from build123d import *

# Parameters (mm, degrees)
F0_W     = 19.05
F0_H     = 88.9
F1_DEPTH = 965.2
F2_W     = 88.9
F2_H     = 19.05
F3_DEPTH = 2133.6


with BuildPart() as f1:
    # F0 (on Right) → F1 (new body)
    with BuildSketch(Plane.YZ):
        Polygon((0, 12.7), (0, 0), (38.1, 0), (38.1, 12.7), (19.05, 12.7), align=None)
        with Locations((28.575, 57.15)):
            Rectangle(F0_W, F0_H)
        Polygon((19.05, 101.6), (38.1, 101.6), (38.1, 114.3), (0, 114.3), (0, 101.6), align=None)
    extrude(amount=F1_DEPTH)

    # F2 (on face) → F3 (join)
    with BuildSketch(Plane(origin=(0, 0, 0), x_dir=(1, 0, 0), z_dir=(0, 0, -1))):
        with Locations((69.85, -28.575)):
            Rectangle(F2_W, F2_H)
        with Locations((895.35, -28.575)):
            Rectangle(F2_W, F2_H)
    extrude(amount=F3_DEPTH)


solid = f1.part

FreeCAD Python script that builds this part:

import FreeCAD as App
import Part
import Sketcher
from FreeCAD import Vector
Q = App.Units.Quantity

doc = App.newDocument("Part")
params = doc.addObject("Spreadsheet::Sheet", "Params")
for row, (alias, value) in enumerate([
    ("sketch1_width", "1.5 in"),
    ("sketch1_height", "0.5 in"),
    ("sketch1_height2", "4.5 in"),
    ("sketch1_width2", "0.75 in"),
    ("pad1_length", "38 in"),
    ("sketch2_width", "3.5 in"),
    ("sketch2_height", "0.75 in"),
    ("pad2_length", "84 in"),
], start=1):
    params.set(f"A{row}", alias)
    params.set(f"B{row}", "=" + value)
    params.setAlias(f"B{row}", alias)

body = doc.addObject("PartDesign::Body", "Body")

sketch1 = body.newObject("Sketcher::SketchObject", "Sketch")
sketch1.AttachmentSupport = (doc.getObject("YZ_Plane"), [""])
sketch1.MapMode = "FlatFace"
sketch1.addGeometry(Part.LineSegment(Vector(0, 13, 0), Vector(0, 0, 0)), False)
sketch1.addGeometry(Part.LineSegment(Vector(0, 0, 0), Vector(38, 0, 0)), False)
sketch1.addGeometry(Part.LineSegment(Vector(38, 0, 0), Vector(38, 114, 0)), False)
sketch1.addGeometry(Part.LineSegment(Vector(38, 114, 0), Vector(0, 114, 0)), False)
sketch1.addGeometry(Part.LineSegment(Vector(0, 114, 0), Vector(0, 102, 0)), False)
sketch1.addGeometry(Part.LineSegment(Vector(0, 102, 0), Vector(19, 102, 0)), False)
sketch1.addGeometry(Part.LineSegment(Vector(19, 102, 0), Vector(19, 13, 0)), False)
sketch1.addGeometry(Part.LineSegment(Vector(19, 13, 0), Vector(0, 13, 0)), False)
sketch1.addConstraint(Sketcher.Constraint("Coincident", 0, 2, 1, 1))
sketch1.addConstraint(Sketcher.Constraint("Coincident", 1, 2, 2, 1))
sketch1.addConstraint(Sketcher.Constraint("Coincident", 2, 2, 3, 1))
sketch1.addConstraint(Sketcher.Constraint("Coincident", 3, 2, 4, 1))
sketch1.addConstraint(Sketcher.Constraint("Coincident", 4, 2, 5, 1))
sketch1.addConstraint(Sketcher.Constraint("Coincident", 5, 2, 6, 1))
sketch1.addConstraint(Sketcher.Constraint("Coincident", 6, 2, 7, 1))
sketch1.addConstraint(Sketcher.Constraint("Coincident", 7, 2, 0, 1))
sketch1.addConstraint(Sketcher.Constraint("Vertical", 0))
sketch1.addConstraint(Sketcher.Constraint("Horizontal", 1))
sketch1.addConstraint(Sketcher.Constraint("Vertical", 2))
sketch1.addConstraint(Sketcher.Constraint("Horizontal", 3))
sketch1.addConstraint(Sketcher.Constraint("Vertical", 4))
sketch1.addConstraint(Sketcher.Constraint("Horizontal", 5))
sketch1.addConstraint(Sketcher.Constraint("Vertical", 6))
sketch1.addConstraint(Sketcher.Constraint("Horizontal", 7))
sketch1.addConstraint(Sketcher.Constraint("Coincident", 0, 2, -1, 1))
sketch1.addConstraint(Sketcher.Constraint("PointOnObject", 3, 2, -2))
sketch1.addConstraint(Sketcher.Constraint("Equal", 0, 4))
sketch1.addConstraint(Sketcher.Constraint("DistanceX", 1, 1, 1, 2, Q("1.5 in")))
sketch1.addConstraint(Sketcher.Constraint("DistanceY", 0, 2, 0, 1, Q("0.5 in")))
sketch1.addConstraint(Sketcher.Constraint("DistanceY", 2, 1, 2, 2, Q("4.5 in")))
sketch1.addConstraint(Sketcher.Constraint("DistanceX", 5, 1, 5, 2, Q("0.75 in")))
sketch1.setExpression("Constraints[19]", "Params.sketch1_width")
sketch1.setExpression("Constraints[20]", "Params.sketch1_height")
sketch1.setExpression("Constraints[21]", "Params.sketch1_height2")
sketch1.setExpression("Constraints[22]", "Params.sketch1_width2")
pad1 = body.newObject("PartDesign::Pad", "Pad")
pad1.Profile = sketch1
pad1.setExpression("Length", "Params.pad1_length")

sketch2 = body.newObject("Sketcher::SketchObject", "Sketch001")
sketch2.AttachmentSupport = (doc.getObject("XY_Plane"), [""])
sketch2.MapMode = "FlatFace"
sketch2.addGeometry(Part.LineSegment(Vector(25, 19, 0), Vector(25, 38, 0)), False)
sketch2.addGeometry(Part.LineSegment(Vector(25, 38, 0), Vector(114, 38, 0)), False)
sketch2.addGeometry(Part.LineSegment(Vector(114, 38, 0), Vector(114, 19, 0)), False)
sketch2.addGeometry(Part.LineSegment(Vector(114, 19, 0), Vector(25, 19, 0)), False)
sketch2.addGeometry(Part.LineSegment(Vector(851, 19, 0), Vector(851, 38, 0)), False)
sketch2.addGeometry(Part.LineSegment(Vector(851, 38, 0), Vector(940, 38, 0)), False)
sketch2.addGeometry(Part.LineSegment(Vector(940, 38, 0), Vector(940, 19, 0)), False)
sketch2.addGeometry(Part.LineSegment(Vector(940, 19, 0), Vector(851, 19, 0)), False)
sketch2.addConstraint(Sketcher.Constraint("Coincident", 0, 2, 1, 1))
sketch2.addConstraint(Sketcher.Constraint("Coincident", 1, 2, 2, 1))
sketch2.addConstraint(Sketcher.Constraint("Coincident", 2, 2, 3, 1))
sketch2.addConstraint(Sketcher.Constraint("Coincident", 3, 2, 0, 1))
sketch2.addConstraint(Sketcher.Constraint("Coincident", 4, 2, 5, 1))
sketch2.addConstraint(Sketcher.Constraint("Coincident", 5, 2, 6, 1))
sketch2.addConstraint(Sketcher.Constraint("Coincident", 6, 2, 7, 1))
sketch2.addConstraint(Sketcher.Constraint("Coincident", 7, 2, 4, 1))
sketch2.addConstraint(Sketcher.Constraint("Vertical", 0))
sketch2.addConstraint(Sketcher.Constraint("Horizontal", 1))
sketch2.addConstraint(Sketcher.Constraint("Vertical", 2))
sketch2.addConstraint(Sketcher.Constraint("Horizontal", 3))
sketch2.addConstraint(Sketcher.Constraint("Vertical", 4))
sketch2.addConstraint(Sketcher.Constraint("Horizontal", 5))
sketch2.addConstraint(Sketcher.Constraint("Vertical", 6))
sketch2.addConstraint(Sketcher.Constraint("Horizontal", 7))
sketch2.addConstraint(Sketcher.Constraint("Horizontal", 1, 2, 4, 2))
sketch2.addConstraint(Sketcher.Constraint("Horizontal", 3, 2, 6, 2))
sketch2.addConstraint(Sketcher.Constraint("Equal", 3, 5))
sketch2.addConstraint(Sketcher.Constraint("DistanceX", 1, 1, 1, 2, Q("3.5 in")))
sketch2.addConstraint(Sketcher.Constraint("DistanceX", -1, 1, 0, 2, Q("1 in")))
sketch2.addConstraint(Sketcher.Constraint("DistanceX", -1, 1, 5, 2, Q("37 in")))
sketch2.addConstraint(Sketcher.Constraint("DistanceY", 0, 1, 0, 2, Q("0.75 in")))
sketch2.addConstraint(Sketcher.Constraint("DistanceY", -1, 1, 0, 2, Q("1.5 in")))
sketch2.setExpression("Constraints[19]", "Params.sketch2_width")
sketch2.setExpression("Constraints[22]", "Params.sketch2_height")
pad2 = body.newObject("PartDesign::Pad", "Pad001")
pad2.Profile = sketch2
pad2.setExpression("Length", "Params.pad2_length")
pad2.Reversed = True

doc.recompute()
